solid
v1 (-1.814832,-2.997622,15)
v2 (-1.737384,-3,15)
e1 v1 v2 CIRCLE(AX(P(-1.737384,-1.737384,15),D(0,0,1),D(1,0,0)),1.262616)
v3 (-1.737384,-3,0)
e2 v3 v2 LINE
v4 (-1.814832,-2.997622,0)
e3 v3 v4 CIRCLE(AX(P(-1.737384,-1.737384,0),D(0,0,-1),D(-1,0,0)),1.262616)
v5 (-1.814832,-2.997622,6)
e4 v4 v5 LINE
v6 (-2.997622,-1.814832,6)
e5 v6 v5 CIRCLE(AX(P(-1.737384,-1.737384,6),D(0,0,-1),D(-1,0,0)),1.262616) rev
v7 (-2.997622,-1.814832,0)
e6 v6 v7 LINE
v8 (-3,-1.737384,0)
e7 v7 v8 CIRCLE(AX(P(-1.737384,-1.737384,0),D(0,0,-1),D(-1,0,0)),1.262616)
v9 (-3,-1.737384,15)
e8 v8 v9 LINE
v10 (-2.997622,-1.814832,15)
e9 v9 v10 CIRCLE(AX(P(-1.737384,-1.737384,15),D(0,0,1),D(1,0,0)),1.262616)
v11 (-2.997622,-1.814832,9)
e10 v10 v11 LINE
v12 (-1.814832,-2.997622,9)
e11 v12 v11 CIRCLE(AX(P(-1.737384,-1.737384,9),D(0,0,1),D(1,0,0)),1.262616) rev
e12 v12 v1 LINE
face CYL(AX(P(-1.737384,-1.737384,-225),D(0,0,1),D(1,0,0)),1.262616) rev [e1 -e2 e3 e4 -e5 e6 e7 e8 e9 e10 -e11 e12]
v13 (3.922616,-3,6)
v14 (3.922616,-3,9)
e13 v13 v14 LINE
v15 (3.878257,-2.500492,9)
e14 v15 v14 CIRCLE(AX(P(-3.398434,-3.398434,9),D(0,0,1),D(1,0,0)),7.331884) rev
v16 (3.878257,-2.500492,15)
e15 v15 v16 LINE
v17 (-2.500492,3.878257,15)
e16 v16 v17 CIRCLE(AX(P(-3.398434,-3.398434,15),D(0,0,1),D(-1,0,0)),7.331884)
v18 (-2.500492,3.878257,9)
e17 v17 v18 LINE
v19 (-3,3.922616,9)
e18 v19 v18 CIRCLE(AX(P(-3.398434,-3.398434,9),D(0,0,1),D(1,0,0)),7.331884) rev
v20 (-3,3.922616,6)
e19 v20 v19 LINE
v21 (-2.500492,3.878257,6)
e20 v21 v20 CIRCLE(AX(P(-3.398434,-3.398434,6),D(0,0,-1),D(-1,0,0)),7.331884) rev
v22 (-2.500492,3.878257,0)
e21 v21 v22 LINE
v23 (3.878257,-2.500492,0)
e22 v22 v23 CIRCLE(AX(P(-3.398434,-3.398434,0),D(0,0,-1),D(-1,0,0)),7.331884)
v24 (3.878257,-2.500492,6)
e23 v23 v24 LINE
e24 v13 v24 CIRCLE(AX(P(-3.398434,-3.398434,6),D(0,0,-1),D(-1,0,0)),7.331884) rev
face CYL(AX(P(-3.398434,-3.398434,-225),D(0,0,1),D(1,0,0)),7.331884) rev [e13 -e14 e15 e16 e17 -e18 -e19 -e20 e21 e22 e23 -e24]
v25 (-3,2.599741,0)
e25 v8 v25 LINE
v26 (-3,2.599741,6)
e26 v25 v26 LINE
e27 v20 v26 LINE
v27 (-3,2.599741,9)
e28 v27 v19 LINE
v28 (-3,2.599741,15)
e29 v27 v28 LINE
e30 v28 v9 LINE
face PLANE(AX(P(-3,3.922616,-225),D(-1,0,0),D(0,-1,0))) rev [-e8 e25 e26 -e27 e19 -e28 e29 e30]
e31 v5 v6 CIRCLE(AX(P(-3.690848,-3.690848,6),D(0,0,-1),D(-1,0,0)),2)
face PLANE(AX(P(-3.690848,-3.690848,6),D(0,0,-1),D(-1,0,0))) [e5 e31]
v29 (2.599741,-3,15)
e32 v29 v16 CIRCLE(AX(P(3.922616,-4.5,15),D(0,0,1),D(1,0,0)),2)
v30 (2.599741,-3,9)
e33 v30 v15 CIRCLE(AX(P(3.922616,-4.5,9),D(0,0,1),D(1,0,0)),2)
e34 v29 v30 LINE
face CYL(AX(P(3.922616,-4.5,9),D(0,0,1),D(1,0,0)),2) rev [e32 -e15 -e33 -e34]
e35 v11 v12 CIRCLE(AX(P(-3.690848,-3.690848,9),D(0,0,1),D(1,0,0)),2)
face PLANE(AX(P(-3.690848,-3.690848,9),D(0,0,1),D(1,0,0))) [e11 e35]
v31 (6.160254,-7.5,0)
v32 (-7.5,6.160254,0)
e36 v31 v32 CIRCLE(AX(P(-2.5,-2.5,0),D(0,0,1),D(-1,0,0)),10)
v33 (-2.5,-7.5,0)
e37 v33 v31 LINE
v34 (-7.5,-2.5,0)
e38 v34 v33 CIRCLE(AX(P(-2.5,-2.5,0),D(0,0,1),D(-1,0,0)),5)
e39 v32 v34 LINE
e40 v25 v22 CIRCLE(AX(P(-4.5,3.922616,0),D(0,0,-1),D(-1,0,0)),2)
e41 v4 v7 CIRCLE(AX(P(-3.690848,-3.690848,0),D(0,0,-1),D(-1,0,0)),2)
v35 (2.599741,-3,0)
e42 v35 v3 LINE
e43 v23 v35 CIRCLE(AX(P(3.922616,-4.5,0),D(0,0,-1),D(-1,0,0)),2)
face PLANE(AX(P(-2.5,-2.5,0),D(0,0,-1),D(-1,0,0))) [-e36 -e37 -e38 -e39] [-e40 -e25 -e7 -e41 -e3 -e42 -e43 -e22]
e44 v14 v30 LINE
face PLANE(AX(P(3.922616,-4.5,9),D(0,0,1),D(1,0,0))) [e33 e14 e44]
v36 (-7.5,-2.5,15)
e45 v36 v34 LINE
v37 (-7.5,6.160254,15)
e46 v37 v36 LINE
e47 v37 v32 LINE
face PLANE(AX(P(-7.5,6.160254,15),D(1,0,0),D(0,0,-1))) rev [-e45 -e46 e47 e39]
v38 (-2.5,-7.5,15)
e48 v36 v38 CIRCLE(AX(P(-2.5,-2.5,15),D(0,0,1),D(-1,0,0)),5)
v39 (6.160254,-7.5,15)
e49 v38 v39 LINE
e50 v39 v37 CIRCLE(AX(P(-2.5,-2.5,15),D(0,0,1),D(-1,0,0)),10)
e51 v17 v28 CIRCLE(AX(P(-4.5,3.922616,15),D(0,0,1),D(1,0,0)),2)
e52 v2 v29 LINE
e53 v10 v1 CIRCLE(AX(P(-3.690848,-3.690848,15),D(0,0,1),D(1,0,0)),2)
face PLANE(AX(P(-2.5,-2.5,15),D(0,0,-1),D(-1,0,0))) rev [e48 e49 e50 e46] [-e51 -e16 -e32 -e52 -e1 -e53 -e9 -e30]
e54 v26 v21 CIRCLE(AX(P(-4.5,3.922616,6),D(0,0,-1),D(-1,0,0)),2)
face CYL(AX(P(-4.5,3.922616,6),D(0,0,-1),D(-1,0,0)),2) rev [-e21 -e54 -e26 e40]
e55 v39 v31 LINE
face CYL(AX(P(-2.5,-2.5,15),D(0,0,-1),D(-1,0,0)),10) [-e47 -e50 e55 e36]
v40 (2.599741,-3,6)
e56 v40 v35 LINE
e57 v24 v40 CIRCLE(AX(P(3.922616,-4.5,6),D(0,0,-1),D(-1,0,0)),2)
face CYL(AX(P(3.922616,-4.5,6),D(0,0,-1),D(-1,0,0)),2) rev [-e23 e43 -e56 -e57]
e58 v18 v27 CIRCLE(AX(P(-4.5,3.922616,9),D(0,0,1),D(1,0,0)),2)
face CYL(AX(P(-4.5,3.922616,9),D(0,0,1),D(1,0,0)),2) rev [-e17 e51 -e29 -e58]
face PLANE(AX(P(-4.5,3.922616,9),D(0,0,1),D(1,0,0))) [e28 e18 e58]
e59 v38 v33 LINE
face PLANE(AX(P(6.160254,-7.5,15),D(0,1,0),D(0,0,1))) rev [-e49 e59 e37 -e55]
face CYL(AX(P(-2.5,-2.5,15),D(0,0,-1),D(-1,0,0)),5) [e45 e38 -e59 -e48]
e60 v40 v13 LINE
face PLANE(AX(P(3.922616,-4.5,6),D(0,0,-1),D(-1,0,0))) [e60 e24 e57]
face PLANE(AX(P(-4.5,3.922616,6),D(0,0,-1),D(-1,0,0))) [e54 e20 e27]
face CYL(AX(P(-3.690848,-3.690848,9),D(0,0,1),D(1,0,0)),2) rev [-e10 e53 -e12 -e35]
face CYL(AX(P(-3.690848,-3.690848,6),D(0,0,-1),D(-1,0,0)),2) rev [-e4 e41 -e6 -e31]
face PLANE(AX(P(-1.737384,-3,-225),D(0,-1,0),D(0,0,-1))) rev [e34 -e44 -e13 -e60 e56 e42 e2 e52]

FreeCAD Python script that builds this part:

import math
import FreeCAD as App
import Part
import Sketcher

V = App.Vector

doc = App.newDocument("Part")
body = doc.addObject("PartDesign::Body", "Body")

# Sketch on XY plane
sketch1 = body.newObject("Sketcher::SketchObject", "Sketch")
sketch1.AttachmentSupport = (doc.getObject("XY_Plane"), [""])
sketch1.MapMode = "FlatFace"
sketch1.addGeometry([
    Part.LineSegment(V(-7.5, 6.160254, 0), V(-7.5, -2.5, 0)),
    Part.ArcOfCircle(Part.Circle(V(-2.5, -2.5, 0), V(0, 0, 1), 5), math.radians(180), math.radians(270)),
    Part.LineSegment(V(-2.5, -7.5, 0), V(6.160254, -7.5, 0)),
    Part.ArcOfCircle(Part.Circle(V(-2.5, -2.5, 0), V(0, 0, 1), 10), math.radians(-30), math.radians(120)),
], False)
sketch1.addConstraint([
    Sketcher.Constraint("Tangent", 0, 2, 1, 1),
    Sketcher.Constraint("Tangent", 1, 2, 2, 1),
    Sketcher.Constraint("Coincident", 2, 2, 3, 1),
    Sketcher.Constraint("Coincident", 3, 2, 0, 1),
    Sketcher.Constraint("Vertical", 0),
    Sketcher.Constraint("Horizontal", 2),
    Sketcher.Constraint("Coincident", 3, 3, 1, 3),
    Sketcher.Constraint("Radius", 1, 5.0),
    Sketcher.Constraint("Radius", 3, 10.0),
    Sketcher.Constraint("DistanceX", 1, 3, -1, 1, 2.5),
    Sketcher.Constraint("DistanceY", 1, 3, -1, 1, 2.5),
])
pad1 = body.newObject("PartDesign::Pad", "Pad")
pad1.Profile = sketch1
pad1.Length = 15

# Sketch on XY plane
sketch2 = body.newObject("Sketcher::SketchObject", "Sketch001")
sketch2.AttachmentSupport = (doc.getObject("XY_Plane"), [""])
sketch2.MapMode = "FlatFace"
sketch2.AttachmentOffset = App.Placement(V(0, 0, 15), App.Rotation())
sketch2.addGeometry([
    Part.LineSegment(V(-3, 3.922616, 0), V(-3, -1.737384, 0)),
    Part.ArcOfCircle(Part.Circle(V(-1.737384, -1.737384, 0), V(0, 0, 1), 1.262616), math.radians(180), math.radians(270)),
    Part.LineSegment(V(-1.737384, -3, 0), V(3.922616, -3, 0)),
    Part.ArcOfCircle(Part.Circle(V(-3.398434, -3.398434, 0), V(0, 0, 1), 7.331884), math.radians(3.115138), math.radians(86.884862)),
], False)
sketch2.addConstraint([
    Sketcher.Constraint("Tangent", 0, 2, 1, 1),
    Sketcher.Constraint("Tangent", 1, 2, 2, 1),
    Sketcher.Constraint("Coincident", 2, 2, 3, 1),
    Sketcher.Constraint("Coincident", 3, 2, 0, 1),
    Sketcher.Constraint("Vertical", 0),
    Sketcher.Constraint("Horizontal", 2),
    Sketcher.Constraint("Equal", 2, 0),
    Sketcher.Constraint("DistanceX", 0, 2, -1, 1, 3.0),
    Sketcher.Constraint("DistanceY", 1, 2, -1, 1, 3.0),
    Sketcher.Constraint("DistanceX", 2, 1, 2, 2, 5.66),
    Sketcher.Constraint("Radius", 1, 1.262616),
    Sketcher.Constraint("Radius", 3, 7.331884),
])
pocket1 = body.newObject("PartDesign::Pocket", "Pocket")
pocket1.Profile = sketch2
pocket1.Length = 240

# Sketch on XY plane
sketch3 = body.newObject("Sketcher::SketchObject", "Sketch002")
sketch3.AttachmentSupport = (doc.getObject("XY_Plane"), [""])
sketch3.MapMode = "FlatFace"
sketch3.AttachmentOffset = App.Placement(V(0, 0, 15), App.Rotation())
sketch3.addGeometry([
    Part.Circle(V(-3.690848, -3.690848, 0), V(0, 0, 1), 2),
    Part.Circle(V(-4.5, 3.922616, 0), V(0, 0, 1), 2),
    Part.Circle(V(3.922616, -4.5, 0), V(0, 0, 1), 2),
], False)
sketch3.addConstraint([
    Sketcher.Constraint("Equal", 0, 1),
    Sketcher.Constraint("Equal", 1, 2),
    Sketcher.Constraint("Diameter", 0, 4.0),
    Sketcher.Constraint("DistanceX", 1, 3, -1, 1, 4.5),
    Sketcher.Constraint("DistanceY", 2, 3, -1, 1, 4.5),
    Sketcher.Constraint("DistanceX", 0, 3, -1, 1, 3.690848),
    Sketcher.Constraint("DistanceY", 0, 3, -1, 1, 3.690848),
    Sketcher.Constraint("DistanceY", -1, 1, 1, 3, 3.922616),
    Sketcher.Constraint("DistanceX", -1, 1, 2, 3, 3.922616),
])
pocket2 = body.newObject("PartDesign::Pocket", "Pocket001")
pocket2.Profile = sketch3
pocket2.Length = 6

# Sketch on XY plane
sketch4 = body.newObject("Sketcher::SketchObject", "Sketch003")
sketch4.AttachmentSupport = (doc.getObject("XY_Plane"), [""])
sketch4.MapMode = "FlatFace"
sketch4.AttachmentOffset = App.Placement(V(0, 0, 6), App.Rotation())
sketch4.addGeometry([
    Part.Circle(V(-4.5, 3.922616, 0), V(0, 0, 1), 2),
    Part.Circle(V(3.922616, -4.5, 0), V(0, 0, 1), 2),
    Part.Circle(V(-3.690848, -3.690848, 0), V(0, 0, 1), 2),
], False)
sketch4.addConstraint([
    Sketcher.Constraint("Equal", 0, 1),
    Sketcher.Constraint("Equal", 1, 2),
    Sketcher.Constraint("Diameter", 0, 4.0),
    Sketcher.Constraint("DistanceX", 0, 3, -1, 1, 4.5),
    Sketcher.Constraint("DistanceY", 1, 3, -1, 1, 4.5),
    Sketcher.Constraint("DistanceX", 2, 3, -1, 1, 3.690848),
    Sketcher.Constraint("DistanceY", 2, 3, -1, 1, 3.690848),
    Sketcher.Constraint("DistanceY", -1, 1, 0, 3, 3.922616),
    Sketcher.Constraint("DistanceX", -1, 1, 1, 3, 3.922616),
])
pocket3 = body.newObject("PartDesign::Pocket", "Pocket002")
pocket3.Profile = sketch4
pocket3.Length = 6

doc.recompute()
